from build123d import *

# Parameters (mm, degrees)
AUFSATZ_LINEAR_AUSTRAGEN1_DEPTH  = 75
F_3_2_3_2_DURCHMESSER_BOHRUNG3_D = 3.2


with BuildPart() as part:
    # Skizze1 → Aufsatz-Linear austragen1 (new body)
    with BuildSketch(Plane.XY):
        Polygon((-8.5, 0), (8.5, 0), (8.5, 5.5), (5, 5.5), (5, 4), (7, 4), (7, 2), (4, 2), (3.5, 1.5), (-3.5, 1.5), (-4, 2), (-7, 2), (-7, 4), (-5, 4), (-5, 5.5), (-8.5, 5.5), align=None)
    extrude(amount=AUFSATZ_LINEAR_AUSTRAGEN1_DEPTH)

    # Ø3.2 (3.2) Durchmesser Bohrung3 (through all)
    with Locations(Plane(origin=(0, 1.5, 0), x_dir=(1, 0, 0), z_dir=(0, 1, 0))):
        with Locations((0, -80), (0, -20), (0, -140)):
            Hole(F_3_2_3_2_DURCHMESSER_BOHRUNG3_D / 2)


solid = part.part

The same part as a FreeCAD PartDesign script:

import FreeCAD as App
import Part
import Sketcher

doc = App.newDocument("Part")
body = doc.addObject("PartDesign::Body", "Body")

# Sketch on XY plane
sketch1 = body.newObject("Sketcher::SketchObject", "Sketch")
sketch1.AttachmentSupport = (doc.getObject("XY_Plane"), [""])
sketch1.MapMode = "FlatFace"
sketch1.addGeometry(Part.LineSegment(App.Vector(-8.5, 0, 0), App.Vector(8.5, 0, 0)), False)
sketch1.addGeometry(Part.LineSegment(App.Vector(8.5, 0, 0), App.Vector(8.5, 5.5, 0)), False)
sketch1.addGeometry(Part.LineSegment(App.Vector(8.5, 5.5, 0), App.Vector(5, 5.5, 0)), False)
sketch1.addGeometry(Part.LineSegment(App.Vector(5, 5.5, 0), App.Vector(5, 4, 0)), False)
sketch1.addGeometry(Part.LineSegment(App.Vector(5, 4, 0), App.Vector(7, 4, 0)), False)
sketch1.addGeometry(Part.LineSegment(App.Vector(7, 4, 0), App.Vector(7, 2, 0)), False)
sketch1.addGeometry(Part.LineSegment(App.Vector(7, 2, 0), App.Vector(4, 2, 0)), False)
sketch1.addGeometry(Part.LineSegment(App.Vector(4, 2, 0), App.Vector(3.5, 1.5, 0)), False)
sketch1.addGeometry(Part.LineSegment(App.Vector(3.5, 1.5, 0), App.Vector(-3.5, 1.5, 0)), False)
sketch1.addGeometry(Part.LineSegment(App.Vector(-3.5, 1.5, 0), App.Vector(-4, 2, 0)), False)
sketch1.addGeometry(Part.LineSegment(App.Vector(-4, 2, 0), App.Vector(-7, 2, 0)), False)
sketch1.addGeometry(Part.LineSegment(App.Vector(-7, 2, 0), App.Vector(-7, 4, 0)), False)
sketch1.addGeometry(Part.LineSegment(App.Vector(-7, 4, 0), App.Vector(-5, 4, 0)), False)
sketch1.addGeometry(Part.LineSegment(App.Vector(-5, 4, 0), App.Vector(-5, 5.5, 0)), False)
sketch1.addGeometry(Part.LineSegment(App.Vector(-5, 5.5, 0), App.Vector(-8.5, 5.5, 0)), False)
sketch1.addGeometry(Part.LineSegment(App.Vector(-8.5, 5.5, 0), App.Vector(-8.5, 0, 0)), False)
sketch1.addConstraint(Sketcher.Constraint("Coincident", 0, 2, 1, 1))
sketch1.addConstraint(Sketcher.Constraint("Coincident", 1, 2, 2, 1))
sketch1.addConstraint(Sketcher.Constraint("Coincident", 2, 2, 3, 1))
sketch1.addConstraint(Sketcher.Constraint("Coincident", 3, 2, 4, 1))
sketch1.addConstraint(Sketcher.Constraint("Coincident", 4, 2, 5, 1))
sketch1.addConstraint(Sketcher.Constraint("Coincident", 5, 2, 6, 1))
sketch1.addConstraint(Sketcher.Constraint("Coincident", 6, 2, 7, 1))
sketch1.addConstraint(Sketcher.Constraint("Coincident", 7, 2, 8, 1))
sketch1.addConstraint(Sketcher.Constraint("Coincident", 8, 2, 9, 1))
sketch1.addConstraint(Sketcher.Constraint("Coincident", 9, 2, 10, 1))
sketch1.addConstraint(Sketcher.Constraint("Coincident", 10, 2, 11, 1))
sketch1.addConstraint(Sketcher.Constraint("Coincident", 11, 2, 12, 1))
sketch1.addConstraint(Sketcher.Constraint("Coincident", 12, 2, 13, 1))
sketch1.addConstraint(Sketcher.Constraint("Coincident", 13, 2, 14, 1))
sketch1.addConstraint(Sketcher.Constraint("Coincident", 14, 2, 15, 1))
sketch1.addConstraint(Sketcher.Constraint("Coincident", 15, 2, 0, 1))
sketch1.addConstraint(Sketcher.Constraint("Horizontal", 0))
sketch1.addConstraint(Sketcher.Constraint("Vertical", 1))
sketch1.addConstraint(Sketcher.Constraint("Horizontal", 2))
sketch1.addConstraint(Sketcher.Constraint("Vertical", 3))
sketch1.addConstraint(Sketcher.Constraint("Horizontal", 4))
sketch1.addConstraint(Sketcher.Constraint("Vertical", 5))
sketch1.addConstraint(Sketcher.Constraint("Horizontal", 6))
sketch1.addConstraint(Sketcher.Constraint("Horizontal", 8))
sketch1.addConstraint(Sketcher.Constraint("Horizontal", 10))
sketch1.addConstraint(Sketcher.Constraint("Vertical", 11))
sketch1.addConstraint(Sketcher.Constraint("Horizontal", 12))
sketch1.addConstraint(Sketcher.Constraint("Vertical", 13))
sketch1.addConstraint(Sketcher.Constraint("Horizontal", 14))
sketch1.addConstraint(Sketcher.Constraint("Vertical", 15))
sketch1.addConstraint(Sketcher.Constraint("Symmetric", 0, 2, 15, 2, -1, 1))
sketch1.addConstraint(Sketcher.Constraint("Symmetric", 6, 2, 9, 2, -2))
sketch1.addConstraint(Sketcher.Constraint("Symmetric", 4, 2, 11, 2, -2))
sketch1.addConstraint(Sketcher.Constraint("Symmetric", 2, 2, 13, 2, -2))
sketch1.addConstraint(Sketcher.Constraint("Perpendicular", 7, 9))
sketch1.addConstraint(Sketcher.Constraint("Equal", 12, 5))
sketch1.addConstraint(Sketcher.Constraint("Equal", 7, 9))
sketch1.addConstraint(Sketcher.Constraint("DistanceX", 0, 1, 0, 2, 17.0))
sketch1.addConstraint(Sketcher.Constraint("DistanceX", 4, 1, 4, 2, 2.0))
sketch1.addConstraint(Sketcher.Constraint("DistanceX", 6, 2, 6, 1, 3.0))
sketch1.addConstraint(Sketcher.Constraint("DistanceX", 8, 2, 8, 1, 7.0))
sketch1.addConstraint(Sketcher.Constraint("DistanceX", 2, 2, 2, 1, 3.5))
sketch1.addConstraint(Sketcher.Constraint("DistanceY", 1, 1, 1, 2, 5.5))
sketch1.addConstraint(Sketcher.Constraint("DistanceY", 3, 2, 3, 1, 1.5))
pad1 = body.newObject("PartDesign::Pad", "Pad")
pad1.Profile = sketch1
pad1.Length = 75

# Sketch on XZ plane
sketch2 = body.newObject("Sketcher::SketchObject", "Sketch001")
sketch2.AttachmentSupport = (doc.getObject("XZ_Plane"), [""])
sketch2.MapMode = "FlatFace"
sketch2.AttachmentOffset = App.Placement(App.Vector(0, 0, -1.5), App.Rotation())
sketch2.addGeometry(Part.Circle(App.Vector(0, 80, 0), App.Vector(0, 0, 1), 1.6), False)
sketch2.addGeometry(Part.Circle(App.Vector(0, 20, 0), App.Vector(0, 0, 1), 1.6), False)
sketch2.addGeometry(Part.Circle(App.Vector(0, 140, 0), App.Vector(0, 0, 1), 1.6), False)
sketch2.addConstraint(Sketcher.Constraint("Equal", 0, 1))
sketch2.addConstraint(Sketcher.Constraint("Equal", 1, 2))
sketch2.addConstraint(Sketcher.Constraint("PointOnObject", 0, 3, -2))
sketch2.addConstraint(Sketcher.Constraint("PointOnObject", 1, 3, -2))
sketch2.addConstraint(Sketcher.Constraint("PointOnObject", 2, 3, -2))
sketch2.addConstraint(Sketcher.Constraint("Diameter", 0, 3.2))
sketch2.addConstraint(Sketcher.Constraint("DistanceY", -1, 1, 0, 3, 80.0))
sketch2.addConstraint(Sketcher.Constraint("DistanceY", -1, 1, 1, 3, 20.0))
sketch2.addConstraint(Sketcher.Constraint("DistanceY", -1, 1, 2, 3, 140.0))
doc.recompute()
hole = body.newObject("PartDesign::Hole", "Hole")
hole.Profile = sketch2
hole.ThreadType = "None"
hole.Diameter = 3.2
hole.DepthType = "ThroughAll"
hole.Reversed = True

doc.recompute()
